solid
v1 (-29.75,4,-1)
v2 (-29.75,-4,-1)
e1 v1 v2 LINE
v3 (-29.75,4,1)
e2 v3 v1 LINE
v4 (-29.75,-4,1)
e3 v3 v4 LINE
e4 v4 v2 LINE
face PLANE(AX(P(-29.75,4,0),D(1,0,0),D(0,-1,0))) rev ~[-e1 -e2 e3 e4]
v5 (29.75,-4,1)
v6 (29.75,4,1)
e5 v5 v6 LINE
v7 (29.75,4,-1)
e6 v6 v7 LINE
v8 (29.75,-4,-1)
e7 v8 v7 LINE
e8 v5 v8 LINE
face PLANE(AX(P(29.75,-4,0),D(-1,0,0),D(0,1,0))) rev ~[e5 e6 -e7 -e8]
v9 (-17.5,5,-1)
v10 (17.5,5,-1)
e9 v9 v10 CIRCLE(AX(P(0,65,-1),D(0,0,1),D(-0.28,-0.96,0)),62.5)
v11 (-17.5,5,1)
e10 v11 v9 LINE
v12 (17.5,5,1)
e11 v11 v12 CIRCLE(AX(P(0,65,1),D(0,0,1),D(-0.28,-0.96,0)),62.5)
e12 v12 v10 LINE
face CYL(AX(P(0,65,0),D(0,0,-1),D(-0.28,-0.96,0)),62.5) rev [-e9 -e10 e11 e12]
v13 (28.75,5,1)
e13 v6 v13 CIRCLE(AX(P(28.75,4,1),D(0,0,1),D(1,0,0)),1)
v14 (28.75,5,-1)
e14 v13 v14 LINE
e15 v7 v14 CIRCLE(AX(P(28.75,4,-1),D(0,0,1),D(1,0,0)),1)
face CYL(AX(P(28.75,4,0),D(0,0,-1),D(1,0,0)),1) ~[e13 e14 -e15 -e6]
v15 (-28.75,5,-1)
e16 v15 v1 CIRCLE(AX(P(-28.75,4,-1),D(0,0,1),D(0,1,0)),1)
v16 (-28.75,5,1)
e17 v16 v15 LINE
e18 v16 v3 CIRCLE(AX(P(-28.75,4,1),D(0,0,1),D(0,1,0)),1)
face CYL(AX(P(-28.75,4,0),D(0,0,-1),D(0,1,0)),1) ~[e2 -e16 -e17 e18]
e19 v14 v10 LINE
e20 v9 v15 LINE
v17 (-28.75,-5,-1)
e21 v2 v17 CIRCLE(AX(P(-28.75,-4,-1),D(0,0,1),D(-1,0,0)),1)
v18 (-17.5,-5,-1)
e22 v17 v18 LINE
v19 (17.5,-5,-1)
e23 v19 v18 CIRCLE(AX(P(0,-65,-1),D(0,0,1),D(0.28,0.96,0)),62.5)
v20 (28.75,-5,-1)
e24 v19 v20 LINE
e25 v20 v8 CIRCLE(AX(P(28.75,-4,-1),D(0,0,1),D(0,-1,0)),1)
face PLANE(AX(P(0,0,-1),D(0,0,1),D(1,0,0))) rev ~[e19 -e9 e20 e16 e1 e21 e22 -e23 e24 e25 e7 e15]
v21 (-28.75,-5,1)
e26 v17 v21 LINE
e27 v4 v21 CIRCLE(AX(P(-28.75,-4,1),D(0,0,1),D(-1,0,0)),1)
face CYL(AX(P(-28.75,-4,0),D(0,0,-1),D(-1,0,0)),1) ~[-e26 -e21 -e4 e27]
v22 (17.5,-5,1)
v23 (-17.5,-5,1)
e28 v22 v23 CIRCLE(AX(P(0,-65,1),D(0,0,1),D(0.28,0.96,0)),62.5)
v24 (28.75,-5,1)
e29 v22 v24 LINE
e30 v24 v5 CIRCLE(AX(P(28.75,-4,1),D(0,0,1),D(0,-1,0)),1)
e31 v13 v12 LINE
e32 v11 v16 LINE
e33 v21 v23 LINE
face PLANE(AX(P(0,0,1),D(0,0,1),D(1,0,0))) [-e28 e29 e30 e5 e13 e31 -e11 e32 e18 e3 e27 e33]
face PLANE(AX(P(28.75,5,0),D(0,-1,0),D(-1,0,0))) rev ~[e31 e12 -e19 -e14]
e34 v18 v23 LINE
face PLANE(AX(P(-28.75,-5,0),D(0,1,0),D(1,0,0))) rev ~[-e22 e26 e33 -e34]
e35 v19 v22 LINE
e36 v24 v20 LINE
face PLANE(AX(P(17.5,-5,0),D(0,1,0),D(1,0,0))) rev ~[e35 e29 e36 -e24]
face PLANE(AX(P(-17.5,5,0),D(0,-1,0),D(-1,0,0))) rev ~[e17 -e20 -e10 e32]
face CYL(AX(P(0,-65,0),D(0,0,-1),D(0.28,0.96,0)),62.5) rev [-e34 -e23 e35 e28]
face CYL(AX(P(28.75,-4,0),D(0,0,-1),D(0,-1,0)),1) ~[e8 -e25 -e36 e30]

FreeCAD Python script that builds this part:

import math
import FreeCAD as App
import Part
import Sketcher

doc = App.newDocument("Part")
body = doc.addObject("PartDesign::Body", "Body")

# Sketch on XY plane
sketch1 = body.newObject("Sketcher::SketchObject", "Sketch")
sketch1.AttachmentSupport = (doc.getObject("XY_Plane"), [""])
sketch1.MapMode = "FlatFace"
sketch1.addGeometry(Part.ArcOfCircle(Part.Circle(App.Vector(-28.8, -4, 0), App.Vector(0, 0, 1), 1), math.radians(180), math.radians(270)), False)
sketch1.addGeometry(Part.LineSegment(App.Vector(-28.8, -5, 0), App.Vector(-17.5, -5, 0)), False)
sketch1.addGeometry(Part.ArcOfCircle(Part.Circle(App.Vector(0, -65, 0), App.Vector(0, 0, 1), 62.5), math.radians(74), math.radians(106)), False)
sketch1.addGeometry(Part.LineSegment(App.Vector(17.5, -5, 0), App.Vector(28.8, -5, 0)), False)
sketch1.addGeometry(Part.ArcOfCircle(Part.Circle(App.Vector(28.8, -4, 0), App.Vector(0, 0, 1), 1), math.radians(-90), math.radians(0)), False)
sketch1.addGeometry(Part.LineSegment(App.Vector(29.8, -4, 0), App.Vector(29.8, 4, 0)), False)
sketch1.addGeometry(Part.ArcOfCircle(Part.Circle(App.Vector(28.8, 4, 0), App.Vector(0, 0, 1), 1), math.radians(0), math.radians(90)), False)
sketch1.addGeometry(Part.LineSegment(App.Vector(28.8, 5, 0), App.Vector(17.5, 5, 0)), False)
sketch1.addGeometry(Part.ArcOfCircle(Part.Circle(App.Vector(0, 65, 0), App.Vector(0, 0, 1), 62.5), math.radians(-106), math.radians(-74)), False)
sketch1.addGeometry(Part.LineSegment(App.Vector(-17.5, 5, 0), App.Vector(-28.8, 5, 0)), False)
sketch1.addGeometry(Part.ArcOfCircle(Part.Circle(App.Vector(-28.8, 4, 0), App.Vector(0, 0, 1), 1), math.radians(90), math.radians(180)), False)
sketch1.addGeometry(Part.LineSegment(App.Vector(-29.8, 4, 0), App.Vector(-29.8, -4, 0)), False)
sketch1.addConstraint(Sketcher.Constraint("Tangent", 0, 2, 1, 1))
sketch1.addConstraint(Sketcher.Constraint("Coincident", 1, 2, 2, 2))
sketch1.addConstraint(Sketcher.Constraint("Coincident", 2, 1, 3, 1))
sketch1.addConstraint(Sketcher.Constraint("Tangent", 3, 2, 4, 1))
sketch1.addConstraint(Sketcher.Constraint("Tangent", 4, 2, 5, 1))
sketch1.addConstraint(Sketcher.Constraint("Tangent", 5, 2, 6, 1))
sketch1.addConstraint(Sketcher.Constraint("Tangent", 6, 2, 7, 1))
sketch1.addConstraint(Sketcher.Constraint("Coincident", 7, 2, 8, 2))
sketch1.addConstraint(Sketcher.Constraint("Coincident", 8, 1, 9, 1))
sketch1.addConstraint(Sketcher.Constraint("Tangent", 9, 2, 10, 1))
sketch1.addConstraint(Sketcher.Constraint("Tangent", 10, 2, 11, 1))
sketch1.addConstraint(Sketcher.Constraint("Tangent", 11, 2, 0, 1))
sketch1.addConstraint(Sketcher.Constraint("Horizontal", 1))
sketch1.addConstraint(Sketcher.Constraint("Horizontal", 3))
sketch1.addConstraint(Sketcher.Constraint("Vertical", 5))
sketch1.addConstraint(Sketcher.Constraint("Horizontal", 7))
sketch1.addConstraint(Sketcher.Constraint("Horizontal", 9))
sketch1.addConstraint(Sketcher.Constraint("Vertical", 11))
sketch1.addConstraint(Sketcher.Constraint("Equal", 0, 4))
sketch1.addConstraint(Sketcher.Constraint("Equal", 4, 6))
sketch1.addConstraint(Sketcher.Constraint("Equal", 2, 8))
sketch1.addConstraint(Sketcher.Constraint("Equal", 6, 10))
sketch1.addConstraint(Sketcher.Constraint("Symmetric", 0, 3, 6, 3, -1, 1))
sketch1.addConstraint(Sketcher.Constraint("Symmetric", 2, 3, 8, 3, -1, 1))
sketch1.addConstraint(Sketcher.Constraint("Symmetric", 1, 2, 2, 1, -2))
sketch1.addConstraint(Sketcher.Constraint("Horizontal", 6, 3, 10, 3))
sketch1.addConstraint(Sketcher.Constraint("Radius", 0, 1.0))
sketch1.addConstraint(Sketcher.Constraint("DistanceY", 0, 2, -1, 1, 5.0))
sketch1.addConstraint(Sketcher.Constraint("DistanceX", 1, 2, 2, 1, 35.0))
sketch1.addConstraint(Sketcher.Constraint("Radius", 2, 62.5))
sketch1.addConstraint(Sketcher.Constraint("DistanceX", 1, 1, 1, 2, 11.25))
pad1 = body.newObject("PartDesign::Pad", "Pad")
pad1.Profile = sketch1
pad1.Length = 2
pad1.Midplane = True

doc.recompute()
